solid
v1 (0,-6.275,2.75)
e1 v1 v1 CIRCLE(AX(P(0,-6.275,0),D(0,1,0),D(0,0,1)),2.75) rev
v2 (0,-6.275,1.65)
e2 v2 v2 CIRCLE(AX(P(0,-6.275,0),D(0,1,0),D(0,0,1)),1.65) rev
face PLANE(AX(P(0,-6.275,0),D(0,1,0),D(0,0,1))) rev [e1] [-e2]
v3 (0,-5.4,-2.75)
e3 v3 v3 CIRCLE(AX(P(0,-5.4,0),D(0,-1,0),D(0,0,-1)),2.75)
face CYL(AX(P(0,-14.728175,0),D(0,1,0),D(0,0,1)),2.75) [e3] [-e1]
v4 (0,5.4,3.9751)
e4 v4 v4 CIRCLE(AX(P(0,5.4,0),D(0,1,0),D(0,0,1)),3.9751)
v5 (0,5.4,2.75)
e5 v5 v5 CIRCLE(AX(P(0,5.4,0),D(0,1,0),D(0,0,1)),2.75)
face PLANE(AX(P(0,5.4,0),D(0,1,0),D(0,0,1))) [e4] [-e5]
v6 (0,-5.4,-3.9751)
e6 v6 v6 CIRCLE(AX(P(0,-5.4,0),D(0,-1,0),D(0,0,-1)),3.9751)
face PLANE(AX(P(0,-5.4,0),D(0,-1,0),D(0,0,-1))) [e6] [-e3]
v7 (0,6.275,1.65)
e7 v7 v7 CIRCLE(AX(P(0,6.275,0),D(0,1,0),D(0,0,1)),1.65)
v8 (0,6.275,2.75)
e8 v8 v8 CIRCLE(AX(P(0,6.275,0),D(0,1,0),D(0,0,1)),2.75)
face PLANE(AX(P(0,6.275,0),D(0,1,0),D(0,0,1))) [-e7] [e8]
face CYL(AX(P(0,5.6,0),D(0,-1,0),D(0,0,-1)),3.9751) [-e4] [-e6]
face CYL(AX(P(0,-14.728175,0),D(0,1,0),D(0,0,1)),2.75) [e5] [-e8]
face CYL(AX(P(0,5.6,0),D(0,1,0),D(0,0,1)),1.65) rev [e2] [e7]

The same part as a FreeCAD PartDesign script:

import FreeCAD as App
import Part
import Sketcher

V = App.Vector

doc = App.newDocument("Part")
body = doc.addObject("PartDesign::Body", "Body")

# Sketch on XZ plane
sketch1 = body.newObject("Sketcher::SketchObject", "Sketch")
sketch1.AttachmentSupport = (doc.getObject("XZ_Plane"), [""])
sketch1.MapMode = "FlatFace"
sketch1.addGeometry(Part.Circle(V(0, 0, 0), V(0, 0, 1), 4), False)
sketch1.addConstraint([
    Sketcher.Constraint("Coincident", 0, 3, -1, 1),
    Sketcher.Constraint("Diameter", 0, 7.9502),
])
pad1 = body.newObject("PartDesign::Pad", "Pad")
pad1.Profile = sketch1
pad1.Length = 11.2
pad1.Midplane = True

# Sketch on XZ plane
sketch2 = body.newObject("Sketcher::SketchObject", "Sketch001")
sketch2.AttachmentSupport = (doc.getObject("XZ_Plane"), [""])
sketch2.MapMode = "FlatFace"
sketch2.AttachmentOffset = App.Placement(V(0, 0, -5.6), App.Rotation())
sketch2.addGeometry(Part.Circle(V(0, 0, 0), V(0, 0, 1), 1.6), False)
sketch2.addConstraint([
    Sketcher.Constraint("Coincident", 0, 3, -1, 1),
    Sketcher.Constraint("Diameter", 0, 3.3),
])
doc.recompute()
hole = body.newObject("PartDesign::Hole", "Hole")
hole.Profile = sketch2
hole.ThreadType = "None"
hole.Diameter = 3.3
hole.DepthType = "ThroughAll"
hole.Reversed = True

# Sketch on XZ plane
sketch3 = body.newObject("Sketcher::SketchObject", "Sketch002")
sketch3.AttachmentSupport = (doc.getObject("XZ_Plane"), [""])
sketch3.MapMode = "FlatFace"
sketch3.AttachmentOffset = App.Placement(V(0, 0, -5.6), App.Rotation())
sketch3.addGeometry([
    Part.Circle(V(0, 0, 0), V(0, 0, 1), 2.8),
    Part.Circle(V(0, 0, 0), V(0, 0, 1), 1.6),
], False)
sketch3.addConstraint([
    Sketcher.Constraint("Coincident", 0, 3, -1, 1),
    Sketcher.Constraint("Coincident", 1, 3, -1, 1),
    Sketcher.Constraint("Diameter", 0, 5.5),
    Sketcher.Constraint("Diameter", 1, 3.3),
])
pad2 = body.newObject("PartDesign::Pad", "Pad001")
pad2.Profile = sketch3
pad2.Type = "TwoLengths"
pad2.Length = 0.675
pad2.Length2 = 11.875
pad2.Reversed = True

# Sketch on XZ plane
sketch4 = body.newObject("Sketcher::SketchObject", "Sketch003")
sketch4.AttachmentSupport = (doc.getObject("XZ_Plane"), [""])
sketch4.MapMode = "FlatFace"
sketch4.AttachmentOffset = App.Placement(V(0, 0, -5.6), App.Rotation())
sketch4.addGeometry([
    Part.Circle(V(0, 0, 0), V(0, 0, 1), 4),
    Part.Circle(V(0, 0, 0), V(0, 0, 1), 2.8),
], False)
sketch4.addConstraint([
    Sketcher.Constraint("Coincident", 0, 3, -1, 1),
    Sketcher.Constraint("Coincident", 1, 3, -1, 1),
    Sketcher.Constraint("Diameter", 1, 5.5),
    Sketcher.Constraint("Diameter", 0, 7.9502),
])
pocket1 = body.newObject("PartDesign::Pocket", "Pocket")
pocket1.Profile = sketch4
pocket1.Length = 0.2
pocket1.Reversed = True

# Sketch on XZ plane
sketch5 = body.newObject("Sketcher::SketchObject", "Sketch004")
sketch5.AttachmentSupport = (doc.getObject("XZ_Plane"), [""])
sketch5.MapMode = "FlatFace"
sketch5.AttachmentOffset = App.Placement(V(0, 0, 5.6), App.Rotation())
sketch5.addGeometry([
    Part.Circle(V(0, 0, 0), V(0, 0, 1), 4),
    Part.Circle(V(0, 0, 0), V(0, 0, 1), 2.8),
], False)
sketch5.addConstraint([
    Sketcher.Constraint("Coincident", 0, 3, -1, 1),
    Sketcher.Constraint("Coincident", 1, 3, -1, 1),
    Sketcher.Constraint("Diameter", 1, 5.5),
    Sketcher.Constraint("Diameter", 0, 7.9502),
])
pocket2 = body.newObject("PartDesign::Pocket", "Pocket001")
pocket2.Profile = sketch5
pocket2.Length = 0.2

doc.recompute()
